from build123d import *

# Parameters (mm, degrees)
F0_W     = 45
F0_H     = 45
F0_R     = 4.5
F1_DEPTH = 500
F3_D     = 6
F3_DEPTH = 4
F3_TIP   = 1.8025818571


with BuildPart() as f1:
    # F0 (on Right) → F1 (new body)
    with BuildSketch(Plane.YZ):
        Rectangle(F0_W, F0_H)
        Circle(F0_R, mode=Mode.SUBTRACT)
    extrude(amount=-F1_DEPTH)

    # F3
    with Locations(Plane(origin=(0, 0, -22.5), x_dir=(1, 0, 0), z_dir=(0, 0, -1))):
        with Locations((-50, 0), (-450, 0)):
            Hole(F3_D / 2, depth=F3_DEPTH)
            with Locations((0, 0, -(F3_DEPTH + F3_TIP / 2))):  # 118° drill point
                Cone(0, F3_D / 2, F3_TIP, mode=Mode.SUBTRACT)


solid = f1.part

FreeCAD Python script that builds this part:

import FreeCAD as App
import Part
import Sketcher
from FreeCAD import Vector
Q = App.Units.Quantity


def add_polygon(sketch, points):
    """Adds a closed chain of lines whose ends are joined by coincident constraints."""
    first, n = sketch.GeometryCount, len(points)
    for a, b in zip(points, points[1:] + points[:1]):
        sketch.addGeometry(Part.LineSegment(App.Vector(*a, 0), App.Vector(*b, 0)), False)
    for i in range(n):
        sketch.addConstraint(Sketcher.Constraint("Coincident", first + i, 2, first + (i + 1) % n, 1))

doc = App.newDocument("Part")
body = doc.addObject("PartDesign::Body", "Body")

# Sketch on YZ plane
sketch1 = doc.addObject("Sketcher::SketchObject", "Sketch")
body.addObject(sketch1)
sketch1.AttachmentSupport = (doc.YZ_Plane, [""])
sketch1.MapMode = "FlatFace"
add_polygon(sketch1, [(-22.5, 22.5), (-22.5, -22.5), (22.5, -22.5), (22.5, 22.5)])  # lines 0-3
sketch1.addGeometry(Part.Circle(Vector(0, 0, 0), Vector(0, 0, 1), 4.5), False)  # 4
sketch1.addConstraint(Sketcher.Constraint("Vertical", 0))
sketch1.addConstraint(Sketcher.Constraint("Horizontal", 1))
sketch1.addConstraint(Sketcher.Constraint("Vertical", 2))
sketch1.addConstraint(Sketcher.Constraint("Horizontal", 3))
sketch1.addConstraint(Sketcher.Constraint("Coincident", 4, 3, -1, 1))
sketch1.addConstraint(Sketcher.Constraint("Symmetric", 0, 2, 2, 2, -1, 1))
sketch1.addConstraint(Sketcher.Constraint("Equal", 3, 0))
sketch1.addConstraint(Sketcher.Constraint("Diameter", 4, Q("9 mm")))
sketch1.addConstraint(Sketcher.Constraint("DistanceX", 1, 1, 1, 2, Q("45 mm")))
pad1 = doc.addObject("PartDesign::Pad", "Pad")
body.addObject(pad1)
pad1.Profile = sketch1
pad1.Length = 500
pad1.Reversed = True

# Sketch on XY plane
sketch2 = doc.addObject("Sketcher::SketchObject", "Sketch001")
body.addObject(sketch2)
sketch2.AttachmentSupport = (doc.XY_Plane, [""])
sketch2.MapMode = "FlatFace"
sketch2.AttachmentOffset = App.Placement(Vector(0, 0, -22.5), App.Rotation())
sketch2.addGeometry(Part.Circle(Vector(-50, 0, 0), Vector(0, 0, 1), 3), False)
sketch2.addGeometry(Part.Circle(Vector(-450, 0, 0), Vector(0, 0, 1), 3), False)
sketch2.addConstraint(Sketcher.Constraint("Equal", 0, 1))
sketch2.addConstraint(Sketcher.Constraint("PointOnObject", 0, 3, -1))
sketch2.addConstraint(Sketcher.Constraint("PointOnObject", 1, 3, -1))
sketch2.addConstraint(Sketcher.Constraint("Diameter", 0, Q("6 mm")))
sketch2.addConstraint(Sketcher.Constraint("DistanceX", 0, 3, -1, 1, Q("50 mm")))
sketch2.addConstraint(Sketcher.Constraint("DistanceX", 1, 3, -1, 1, Q("450 mm")))
doc.recompute()
hole = doc.addObject("PartDesign::Hole", "Hole")
body.addObject(hole)
hole.Profile = sketch2
hole.ThreadType = "None"
hole.Diameter = 6
hole.DepthType = "Dimension"
hole.Depth = 4
hole.DrillPoint = "Angled"
hole.DrillPointAngle = 118
hole.Reversed = True

doc.recompute()
